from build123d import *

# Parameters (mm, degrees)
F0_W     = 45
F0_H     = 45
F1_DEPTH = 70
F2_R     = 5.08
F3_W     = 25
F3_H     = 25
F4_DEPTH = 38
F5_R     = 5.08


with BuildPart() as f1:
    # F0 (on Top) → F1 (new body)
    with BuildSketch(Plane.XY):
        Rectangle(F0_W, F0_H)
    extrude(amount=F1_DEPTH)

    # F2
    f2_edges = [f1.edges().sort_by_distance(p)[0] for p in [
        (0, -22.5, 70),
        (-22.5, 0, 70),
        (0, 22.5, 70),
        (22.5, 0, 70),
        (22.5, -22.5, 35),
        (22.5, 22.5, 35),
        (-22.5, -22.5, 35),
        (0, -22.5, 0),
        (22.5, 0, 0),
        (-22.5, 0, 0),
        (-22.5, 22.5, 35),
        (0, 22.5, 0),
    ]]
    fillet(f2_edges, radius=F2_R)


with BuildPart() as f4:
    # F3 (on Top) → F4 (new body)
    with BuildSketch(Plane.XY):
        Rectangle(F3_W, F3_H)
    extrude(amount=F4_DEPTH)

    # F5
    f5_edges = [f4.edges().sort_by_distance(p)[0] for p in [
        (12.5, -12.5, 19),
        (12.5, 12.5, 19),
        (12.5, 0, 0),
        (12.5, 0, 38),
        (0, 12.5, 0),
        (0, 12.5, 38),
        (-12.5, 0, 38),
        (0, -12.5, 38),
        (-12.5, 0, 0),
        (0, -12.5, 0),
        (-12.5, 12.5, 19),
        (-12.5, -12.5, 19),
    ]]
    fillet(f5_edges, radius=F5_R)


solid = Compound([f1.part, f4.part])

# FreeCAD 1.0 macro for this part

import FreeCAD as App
import Part
import Sketcher

V = App.Vector
Q = App.Units.Quantity

doc = App.newDocument("Part")
body = doc.addObject("PartDesign::Body", "Body")

# Sketch on XY plane
sketch1 = body.newObject("Sketcher::SketchObject", "Sketch")
sketch1.AttachmentSupport = (doc.getObject("XY_Plane"), [""])
sketch1.MapMode = "FlatFace"
sketch1.addGeometry([
    Part.LineSegment(V(-22, 22, 0), V(-22, -22, 0)),
    Part.LineSegment(V(-22, -22, 0), V(22, -22, 0)),
    Part.LineSegment(V(22, -22, 0), V(22, 22, 0)),
    Part.LineSegment(V(22, 22, 0), V(-22, 22, 0)),
], False)
sketch1.addConstraint([
    Sketcher.Constraint("Coincident", 0, 2, 1, 1),
    Sketcher.Constraint("Coincident", 1, 2, 2, 1),
    Sketcher.Constraint("Coincident", 2, 2, 3, 1),
    Sketcher.Constraint("Coincident", 3, 2, 0, 1),
    Sketcher.Constraint("Vertical", 0),
    Sketcher.Constraint("Horizontal", 1),
    Sketcher.Constraint("Vertical", 2),
    Sketcher.Constraint("Horizontal", 3),
    Sketcher.Constraint("Symmetric", 0, 2, 2, 2, -1, 1),
    Sketcher.Constraint("Equal", 3, 0),
    Sketcher.Constraint("DistanceX", 1, 1, 1, 2, Q("45 mm")),
])
pad1 = body.newObject("PartDesign::Pad", "Pad")
pad1.Profile = sketch1
pad1.Length = 70
doc.recompute()

fillet = body.newObject("PartDesign::Fillet", "Fillet")
fillet.Base = (pad1, ["Edge1"])
fillet.UseAllEdges = True
fillet.Radius = 5.08
body2 = doc.addObject("PartDesign::Body", "Body001")

# Sketch on XY plane
sketch2 = body2.newObject("Sketcher::SketchObject", "Sketch001")
sketch2.AttachmentSupport = (doc.getObject("XY_Plane001"), [""])
sketch2.MapMode = "FlatFace"
sketch2.addGeometry([
    Part.LineSegment(V(-12, 12, 0), V(-12, -12, 0)),
    Part.LineSegment(V(-12, -12, 0), V(12, -12, 0)),
    Part.LineSegment(V(12, -12, 0), V(12, 12, 0)),
    Part.LineSegment(V(12, 12, 0), V(-12, 12, 0)),
], False)
sketch2.addConstraint([
    Sketcher.Constraint("Coincident", 0, 2, 1, 1),
    Sketcher.Constraint("Coincident", 1, 2, 2, 1),
    Sketcher.Constraint("Coincident", 2, 2, 3, 1),
    Sketcher.Constraint("Coincident", 3, 2, 0, 1),
    Sketcher.Constraint("Vertical", 0),
    Sketcher.Constraint("Horizontal", 1),
    Sketcher.Constraint("Vertical", 2),
    Sketcher.Constraint("Horizontal", 3),
    Sketcher.Constraint("Symmetric", 0, 2, 2, 2, -1, 1),
    Sketcher.Constraint("Equal", 3, 0),
    Sketcher.Constraint("DistanceX", 1, 1, 1, 2, Q("25 mm")),
])
pad2 = body2.newObject("PartDesign::Pad", "Pad001")
pad2.Profile = sketch2
pad2.Length = 38
doc.recompute()

fillet2 = body2.newObject("PartDesign::Fillet", "Fillet001")
fillet2.Base = (pad2, ["Edge1"])
fillet2.UseAllEdges = True
fillet2.Radius = 5.08

doc.recompute()
